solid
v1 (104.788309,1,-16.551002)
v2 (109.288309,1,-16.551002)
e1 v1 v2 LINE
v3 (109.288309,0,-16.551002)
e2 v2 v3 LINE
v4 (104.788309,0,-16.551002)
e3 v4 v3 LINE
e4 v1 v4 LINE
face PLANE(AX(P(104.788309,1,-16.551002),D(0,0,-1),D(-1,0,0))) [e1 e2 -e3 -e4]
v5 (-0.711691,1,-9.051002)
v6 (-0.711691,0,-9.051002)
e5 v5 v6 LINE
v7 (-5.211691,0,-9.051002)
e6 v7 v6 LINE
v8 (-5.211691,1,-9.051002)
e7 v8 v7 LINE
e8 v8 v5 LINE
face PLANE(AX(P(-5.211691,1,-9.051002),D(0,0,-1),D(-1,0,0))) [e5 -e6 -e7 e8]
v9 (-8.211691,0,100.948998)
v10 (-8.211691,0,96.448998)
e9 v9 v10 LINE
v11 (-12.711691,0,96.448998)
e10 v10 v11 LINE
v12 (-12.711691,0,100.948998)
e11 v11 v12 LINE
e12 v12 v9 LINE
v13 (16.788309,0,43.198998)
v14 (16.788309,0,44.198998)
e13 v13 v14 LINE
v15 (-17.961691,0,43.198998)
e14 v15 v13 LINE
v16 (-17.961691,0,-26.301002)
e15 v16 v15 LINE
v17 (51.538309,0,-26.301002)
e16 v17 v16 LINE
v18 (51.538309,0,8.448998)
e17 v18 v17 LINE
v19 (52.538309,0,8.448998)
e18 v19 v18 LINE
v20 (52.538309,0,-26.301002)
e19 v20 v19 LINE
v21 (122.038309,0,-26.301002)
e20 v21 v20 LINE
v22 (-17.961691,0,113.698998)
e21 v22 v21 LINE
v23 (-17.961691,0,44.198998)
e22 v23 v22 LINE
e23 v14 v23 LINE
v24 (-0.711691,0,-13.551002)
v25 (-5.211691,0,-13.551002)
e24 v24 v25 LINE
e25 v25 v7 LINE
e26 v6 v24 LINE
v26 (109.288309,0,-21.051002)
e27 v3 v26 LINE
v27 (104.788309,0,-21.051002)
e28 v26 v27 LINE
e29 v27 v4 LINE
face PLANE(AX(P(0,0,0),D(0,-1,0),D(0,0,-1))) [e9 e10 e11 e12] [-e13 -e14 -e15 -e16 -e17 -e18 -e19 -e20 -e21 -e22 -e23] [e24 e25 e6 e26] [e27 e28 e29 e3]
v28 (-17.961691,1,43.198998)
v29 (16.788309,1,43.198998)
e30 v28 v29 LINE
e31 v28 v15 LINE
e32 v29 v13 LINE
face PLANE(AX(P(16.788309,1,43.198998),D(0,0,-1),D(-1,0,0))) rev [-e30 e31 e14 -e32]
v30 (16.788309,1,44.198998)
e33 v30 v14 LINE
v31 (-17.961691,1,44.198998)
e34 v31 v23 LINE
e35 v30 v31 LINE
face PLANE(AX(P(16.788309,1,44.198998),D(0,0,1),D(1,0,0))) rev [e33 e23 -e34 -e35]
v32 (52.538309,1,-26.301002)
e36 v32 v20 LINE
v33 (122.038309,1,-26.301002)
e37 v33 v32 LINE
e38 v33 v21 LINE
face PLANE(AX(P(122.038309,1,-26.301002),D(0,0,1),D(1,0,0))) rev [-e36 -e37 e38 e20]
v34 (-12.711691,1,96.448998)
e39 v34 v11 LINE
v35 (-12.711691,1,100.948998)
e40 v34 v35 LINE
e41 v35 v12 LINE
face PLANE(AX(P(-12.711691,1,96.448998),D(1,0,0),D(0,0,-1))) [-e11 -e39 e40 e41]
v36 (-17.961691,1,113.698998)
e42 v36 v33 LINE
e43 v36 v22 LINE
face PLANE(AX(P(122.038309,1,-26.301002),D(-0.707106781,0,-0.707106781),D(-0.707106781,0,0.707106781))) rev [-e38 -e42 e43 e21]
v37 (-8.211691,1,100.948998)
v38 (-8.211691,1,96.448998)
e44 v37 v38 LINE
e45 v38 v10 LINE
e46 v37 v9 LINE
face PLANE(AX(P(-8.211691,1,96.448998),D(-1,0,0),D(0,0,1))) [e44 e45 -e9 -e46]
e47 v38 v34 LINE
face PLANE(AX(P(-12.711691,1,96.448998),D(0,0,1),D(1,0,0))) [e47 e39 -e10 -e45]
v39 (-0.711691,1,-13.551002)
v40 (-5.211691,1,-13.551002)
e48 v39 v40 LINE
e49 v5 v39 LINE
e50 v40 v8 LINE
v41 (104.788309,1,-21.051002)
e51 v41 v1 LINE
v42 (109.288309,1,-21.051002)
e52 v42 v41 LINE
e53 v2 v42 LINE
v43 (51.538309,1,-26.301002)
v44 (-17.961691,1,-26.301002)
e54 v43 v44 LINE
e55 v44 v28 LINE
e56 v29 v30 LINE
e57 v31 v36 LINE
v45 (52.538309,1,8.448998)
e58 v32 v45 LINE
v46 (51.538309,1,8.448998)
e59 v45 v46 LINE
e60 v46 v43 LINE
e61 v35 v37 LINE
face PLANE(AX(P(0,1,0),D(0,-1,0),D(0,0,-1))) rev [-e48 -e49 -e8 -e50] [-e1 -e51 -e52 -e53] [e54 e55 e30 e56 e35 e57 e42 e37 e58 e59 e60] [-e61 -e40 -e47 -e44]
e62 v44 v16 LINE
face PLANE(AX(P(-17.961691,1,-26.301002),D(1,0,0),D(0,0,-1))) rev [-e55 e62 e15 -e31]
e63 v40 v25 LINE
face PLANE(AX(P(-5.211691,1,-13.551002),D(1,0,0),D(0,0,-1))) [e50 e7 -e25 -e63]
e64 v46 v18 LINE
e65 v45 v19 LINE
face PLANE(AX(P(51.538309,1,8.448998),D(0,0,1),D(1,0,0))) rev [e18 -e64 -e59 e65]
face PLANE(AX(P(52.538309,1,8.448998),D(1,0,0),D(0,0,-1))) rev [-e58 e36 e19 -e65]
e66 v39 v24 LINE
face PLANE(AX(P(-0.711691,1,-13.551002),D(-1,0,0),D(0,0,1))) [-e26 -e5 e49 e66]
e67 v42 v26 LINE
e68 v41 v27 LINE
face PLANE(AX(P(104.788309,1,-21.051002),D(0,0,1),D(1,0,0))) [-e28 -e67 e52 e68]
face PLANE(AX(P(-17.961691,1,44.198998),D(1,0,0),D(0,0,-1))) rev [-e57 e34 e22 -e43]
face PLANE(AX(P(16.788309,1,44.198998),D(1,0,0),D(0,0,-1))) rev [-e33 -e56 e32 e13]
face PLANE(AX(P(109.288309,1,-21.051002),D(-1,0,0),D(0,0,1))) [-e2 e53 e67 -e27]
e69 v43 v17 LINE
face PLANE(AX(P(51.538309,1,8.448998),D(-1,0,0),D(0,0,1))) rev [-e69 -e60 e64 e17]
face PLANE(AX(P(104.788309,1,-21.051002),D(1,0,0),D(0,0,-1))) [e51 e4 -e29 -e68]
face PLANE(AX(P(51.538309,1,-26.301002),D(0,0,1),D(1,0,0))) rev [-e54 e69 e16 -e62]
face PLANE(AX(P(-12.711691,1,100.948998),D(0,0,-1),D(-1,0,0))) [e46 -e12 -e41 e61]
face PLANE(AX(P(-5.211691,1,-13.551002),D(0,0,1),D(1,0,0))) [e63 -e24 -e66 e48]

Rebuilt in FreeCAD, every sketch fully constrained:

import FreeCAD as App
import Part
import Sketcher
from FreeCAD import Vector
Q = App.Units.Quantity


def add_polygon(sketch, points):
    """Adds a closed chain of lines whose ends are joined by coincident constraints."""
    first, n = sketch.GeometryCount, len(points)
    for a, b in zip(points, points[1:] + points[:1]):
        sketch.addGeometry(Part.LineSegment(App.Vector(*a, 0), App.Vector(*b, 0)), False)
    for i in range(n):
        sketch.addConstraint(Sketcher.Constraint("Coincident", first + i, 2, first + (i + 1) % n, 1))

doc = App.newDocument("Part")
params = doc.addObject("Spreadsheet::Sheet", "Params")
for row, (alias, value) in enumerate([
    ("sketch1_width", "1 mm"),
    ("sketch1_width2", "69.5 mm"),
    ("sketch1_width3", "4.5 mm"),
    ("sketch1_width4", "34.75 mm"),
    ("pad1_length", "1 mm"),
], start=1):
    params.set(f"A{row}", alias)
    params.set(f"B{row}", "=" + value)
    params.setAlias(f"B{row}", alias)

body = doc.addObject("PartDesign::Body", "Body")

sketch1 = body.newObject("Sketcher::SketchObject", "Sketch")
sketch1.AttachmentSupport = (doc.getObject("XZ_Plane"), [""])
sketch1.MapMode = "FlatFace"
add_polygon(sketch1, [(122, -26.3), (52.5, -26.3), (52.5, 8.4), (51.5, 8.4), (51.5, -26.3), (-18, -26.3), (-18, 43.2), (16.8, 43.2), (16.8, 44.2), (-18, 44.2), (-18, 113.7)])
add_polygon(sketch1, [(-8.2, 100.9), (-12.7, 100.9), (-12.7, 96.4), (-8.2, 96.4)])
add_polygon(sketch1, [(-0.7, -9.1), (-5.2, -9.1), (-5.2, -13.6), (-0.7, -13.6)])
add_polygon(sketch1, [(109.3, -16.6), (104.8, -16.6), (104.8, -21.1), (109.3, -21.1)])
sketch1.addConstraint([
    Sketcher.Constraint("Horizontal", 0),
    Sketcher.Constraint("Vertical", 1),
    Sketcher.Constraint("Horizontal", 2),
    Sketcher.Constraint("Vertical", 3),
    Sketcher.Constraint("Horizontal", 4),
    Sketcher.Constraint("Vertical", 5),
    Sketcher.Constraint("Horizontal", 6),
    Sketcher.Constraint("Vertical", 7),
    Sketcher.Constraint("Horizontal", 8),
    Sketcher.Constraint("Vertical", 9),
    Sketcher.Constraint("Horizontal", 11),
    Sketcher.Constraint("Vertical", 12),
    Sketcher.Constraint("Horizontal", 13),
    Sketcher.Constraint("Vertical", 14),
    Sketcher.Constraint("Horizontal", 15),
    Sketcher.Constraint("Vertical", 16),
    Sketcher.Constraint("Horizontal", 17),
    Sketcher.Constraint("Vertical", 18),
    Sketcher.Constraint("Horizontal", 19),
    Sketcher.Constraint("Vertical", 20),
    Sketcher.Constraint("Horizontal", 21),
    Sketcher.Constraint("Vertical", 22),
    Sketcher.Constraint("Horizontal", 0, 2, 3, 2),
    Sketcher.Constraint("Vertical", 5, 2, 8, 2),
    Sketcher.Constraint("Equal", 0, 4),
    Sketcher.Constraint("Equal", 13, 15),
    Sketcher.Constraint("Equal", 17, 19),
    Sketcher.Constraint("Equal", 8, 1),
    Sketcher.Constraint("Equal", 4, 5),
    Sketcher.Constraint("Equal", 2, 7),
    Sketcher.Constraint("Equal", 5, 9),
    Sketcher.Constraint("Equal", 21, 12),
    Sketcher.Constraint("Equal", 14, 16),
    Sketcher.Constraint("Equal", 18, 20),
    Sketcher.Constraint("DistanceX", 2, 2, 2, 1, Q("1 mm")),
    Sketcher.Constraint("DistanceX", 0, 2, 0, 1, Q("69.5 mm")),
    Sketcher.Constraint("DistanceX", 11, 2, 11, 1, Q("4.5 mm")),
    Sketcher.Constraint("DistanceX", 15, 2, 6, 2, Q("22 mm")),
    Sketcher.Constraint("DistanceY", 19, 2, 1, 2, Q("25 mm")),
    Sketcher.Constraint("DistanceX", 6, 1, 6, 2, Q("34.75 mm")),
    Sketcher.Constraint("DistanceX", 11, 2, 7, 2, Q("29.5 mm")),
    Sketcher.Constraint("DistanceY", 11, 2, 9, 2, Q("12.75 mm")),
    Sketcher.Constraint("DistanceY", 4, 2, 15, 2, Q("17.25 mm")),
    Sketcher.Constraint("DistanceX", 19, 2, 10, 2, Q("17.25 mm")),
    Sketcher.Constraint("DistanceX", -1, 1, 0, 2, Q("52.538309 mm")),
    Sketcher.Constraint("DistanceY", 0, 2, -1, 1, Q("26.301002 mm")),
])
sketch1.setExpression("Constraints[57]", "Params.sketch1_width")
sketch1.setExpression("Constraints[58]", "Params.sketch1_width2")
sketch1.setExpression("Constraints[59]", "Params.sketch1_width3")
sketch1.setExpression("Constraints[62]", "Params.sketch1_width4")
pad1 = body.newObject("PartDesign::Pad", "Pad")
pad1.Profile = sketch1
pad1.setExpression("Length", "Params.pad1_length")
pad1.Reversed = True

doc.recompute()
